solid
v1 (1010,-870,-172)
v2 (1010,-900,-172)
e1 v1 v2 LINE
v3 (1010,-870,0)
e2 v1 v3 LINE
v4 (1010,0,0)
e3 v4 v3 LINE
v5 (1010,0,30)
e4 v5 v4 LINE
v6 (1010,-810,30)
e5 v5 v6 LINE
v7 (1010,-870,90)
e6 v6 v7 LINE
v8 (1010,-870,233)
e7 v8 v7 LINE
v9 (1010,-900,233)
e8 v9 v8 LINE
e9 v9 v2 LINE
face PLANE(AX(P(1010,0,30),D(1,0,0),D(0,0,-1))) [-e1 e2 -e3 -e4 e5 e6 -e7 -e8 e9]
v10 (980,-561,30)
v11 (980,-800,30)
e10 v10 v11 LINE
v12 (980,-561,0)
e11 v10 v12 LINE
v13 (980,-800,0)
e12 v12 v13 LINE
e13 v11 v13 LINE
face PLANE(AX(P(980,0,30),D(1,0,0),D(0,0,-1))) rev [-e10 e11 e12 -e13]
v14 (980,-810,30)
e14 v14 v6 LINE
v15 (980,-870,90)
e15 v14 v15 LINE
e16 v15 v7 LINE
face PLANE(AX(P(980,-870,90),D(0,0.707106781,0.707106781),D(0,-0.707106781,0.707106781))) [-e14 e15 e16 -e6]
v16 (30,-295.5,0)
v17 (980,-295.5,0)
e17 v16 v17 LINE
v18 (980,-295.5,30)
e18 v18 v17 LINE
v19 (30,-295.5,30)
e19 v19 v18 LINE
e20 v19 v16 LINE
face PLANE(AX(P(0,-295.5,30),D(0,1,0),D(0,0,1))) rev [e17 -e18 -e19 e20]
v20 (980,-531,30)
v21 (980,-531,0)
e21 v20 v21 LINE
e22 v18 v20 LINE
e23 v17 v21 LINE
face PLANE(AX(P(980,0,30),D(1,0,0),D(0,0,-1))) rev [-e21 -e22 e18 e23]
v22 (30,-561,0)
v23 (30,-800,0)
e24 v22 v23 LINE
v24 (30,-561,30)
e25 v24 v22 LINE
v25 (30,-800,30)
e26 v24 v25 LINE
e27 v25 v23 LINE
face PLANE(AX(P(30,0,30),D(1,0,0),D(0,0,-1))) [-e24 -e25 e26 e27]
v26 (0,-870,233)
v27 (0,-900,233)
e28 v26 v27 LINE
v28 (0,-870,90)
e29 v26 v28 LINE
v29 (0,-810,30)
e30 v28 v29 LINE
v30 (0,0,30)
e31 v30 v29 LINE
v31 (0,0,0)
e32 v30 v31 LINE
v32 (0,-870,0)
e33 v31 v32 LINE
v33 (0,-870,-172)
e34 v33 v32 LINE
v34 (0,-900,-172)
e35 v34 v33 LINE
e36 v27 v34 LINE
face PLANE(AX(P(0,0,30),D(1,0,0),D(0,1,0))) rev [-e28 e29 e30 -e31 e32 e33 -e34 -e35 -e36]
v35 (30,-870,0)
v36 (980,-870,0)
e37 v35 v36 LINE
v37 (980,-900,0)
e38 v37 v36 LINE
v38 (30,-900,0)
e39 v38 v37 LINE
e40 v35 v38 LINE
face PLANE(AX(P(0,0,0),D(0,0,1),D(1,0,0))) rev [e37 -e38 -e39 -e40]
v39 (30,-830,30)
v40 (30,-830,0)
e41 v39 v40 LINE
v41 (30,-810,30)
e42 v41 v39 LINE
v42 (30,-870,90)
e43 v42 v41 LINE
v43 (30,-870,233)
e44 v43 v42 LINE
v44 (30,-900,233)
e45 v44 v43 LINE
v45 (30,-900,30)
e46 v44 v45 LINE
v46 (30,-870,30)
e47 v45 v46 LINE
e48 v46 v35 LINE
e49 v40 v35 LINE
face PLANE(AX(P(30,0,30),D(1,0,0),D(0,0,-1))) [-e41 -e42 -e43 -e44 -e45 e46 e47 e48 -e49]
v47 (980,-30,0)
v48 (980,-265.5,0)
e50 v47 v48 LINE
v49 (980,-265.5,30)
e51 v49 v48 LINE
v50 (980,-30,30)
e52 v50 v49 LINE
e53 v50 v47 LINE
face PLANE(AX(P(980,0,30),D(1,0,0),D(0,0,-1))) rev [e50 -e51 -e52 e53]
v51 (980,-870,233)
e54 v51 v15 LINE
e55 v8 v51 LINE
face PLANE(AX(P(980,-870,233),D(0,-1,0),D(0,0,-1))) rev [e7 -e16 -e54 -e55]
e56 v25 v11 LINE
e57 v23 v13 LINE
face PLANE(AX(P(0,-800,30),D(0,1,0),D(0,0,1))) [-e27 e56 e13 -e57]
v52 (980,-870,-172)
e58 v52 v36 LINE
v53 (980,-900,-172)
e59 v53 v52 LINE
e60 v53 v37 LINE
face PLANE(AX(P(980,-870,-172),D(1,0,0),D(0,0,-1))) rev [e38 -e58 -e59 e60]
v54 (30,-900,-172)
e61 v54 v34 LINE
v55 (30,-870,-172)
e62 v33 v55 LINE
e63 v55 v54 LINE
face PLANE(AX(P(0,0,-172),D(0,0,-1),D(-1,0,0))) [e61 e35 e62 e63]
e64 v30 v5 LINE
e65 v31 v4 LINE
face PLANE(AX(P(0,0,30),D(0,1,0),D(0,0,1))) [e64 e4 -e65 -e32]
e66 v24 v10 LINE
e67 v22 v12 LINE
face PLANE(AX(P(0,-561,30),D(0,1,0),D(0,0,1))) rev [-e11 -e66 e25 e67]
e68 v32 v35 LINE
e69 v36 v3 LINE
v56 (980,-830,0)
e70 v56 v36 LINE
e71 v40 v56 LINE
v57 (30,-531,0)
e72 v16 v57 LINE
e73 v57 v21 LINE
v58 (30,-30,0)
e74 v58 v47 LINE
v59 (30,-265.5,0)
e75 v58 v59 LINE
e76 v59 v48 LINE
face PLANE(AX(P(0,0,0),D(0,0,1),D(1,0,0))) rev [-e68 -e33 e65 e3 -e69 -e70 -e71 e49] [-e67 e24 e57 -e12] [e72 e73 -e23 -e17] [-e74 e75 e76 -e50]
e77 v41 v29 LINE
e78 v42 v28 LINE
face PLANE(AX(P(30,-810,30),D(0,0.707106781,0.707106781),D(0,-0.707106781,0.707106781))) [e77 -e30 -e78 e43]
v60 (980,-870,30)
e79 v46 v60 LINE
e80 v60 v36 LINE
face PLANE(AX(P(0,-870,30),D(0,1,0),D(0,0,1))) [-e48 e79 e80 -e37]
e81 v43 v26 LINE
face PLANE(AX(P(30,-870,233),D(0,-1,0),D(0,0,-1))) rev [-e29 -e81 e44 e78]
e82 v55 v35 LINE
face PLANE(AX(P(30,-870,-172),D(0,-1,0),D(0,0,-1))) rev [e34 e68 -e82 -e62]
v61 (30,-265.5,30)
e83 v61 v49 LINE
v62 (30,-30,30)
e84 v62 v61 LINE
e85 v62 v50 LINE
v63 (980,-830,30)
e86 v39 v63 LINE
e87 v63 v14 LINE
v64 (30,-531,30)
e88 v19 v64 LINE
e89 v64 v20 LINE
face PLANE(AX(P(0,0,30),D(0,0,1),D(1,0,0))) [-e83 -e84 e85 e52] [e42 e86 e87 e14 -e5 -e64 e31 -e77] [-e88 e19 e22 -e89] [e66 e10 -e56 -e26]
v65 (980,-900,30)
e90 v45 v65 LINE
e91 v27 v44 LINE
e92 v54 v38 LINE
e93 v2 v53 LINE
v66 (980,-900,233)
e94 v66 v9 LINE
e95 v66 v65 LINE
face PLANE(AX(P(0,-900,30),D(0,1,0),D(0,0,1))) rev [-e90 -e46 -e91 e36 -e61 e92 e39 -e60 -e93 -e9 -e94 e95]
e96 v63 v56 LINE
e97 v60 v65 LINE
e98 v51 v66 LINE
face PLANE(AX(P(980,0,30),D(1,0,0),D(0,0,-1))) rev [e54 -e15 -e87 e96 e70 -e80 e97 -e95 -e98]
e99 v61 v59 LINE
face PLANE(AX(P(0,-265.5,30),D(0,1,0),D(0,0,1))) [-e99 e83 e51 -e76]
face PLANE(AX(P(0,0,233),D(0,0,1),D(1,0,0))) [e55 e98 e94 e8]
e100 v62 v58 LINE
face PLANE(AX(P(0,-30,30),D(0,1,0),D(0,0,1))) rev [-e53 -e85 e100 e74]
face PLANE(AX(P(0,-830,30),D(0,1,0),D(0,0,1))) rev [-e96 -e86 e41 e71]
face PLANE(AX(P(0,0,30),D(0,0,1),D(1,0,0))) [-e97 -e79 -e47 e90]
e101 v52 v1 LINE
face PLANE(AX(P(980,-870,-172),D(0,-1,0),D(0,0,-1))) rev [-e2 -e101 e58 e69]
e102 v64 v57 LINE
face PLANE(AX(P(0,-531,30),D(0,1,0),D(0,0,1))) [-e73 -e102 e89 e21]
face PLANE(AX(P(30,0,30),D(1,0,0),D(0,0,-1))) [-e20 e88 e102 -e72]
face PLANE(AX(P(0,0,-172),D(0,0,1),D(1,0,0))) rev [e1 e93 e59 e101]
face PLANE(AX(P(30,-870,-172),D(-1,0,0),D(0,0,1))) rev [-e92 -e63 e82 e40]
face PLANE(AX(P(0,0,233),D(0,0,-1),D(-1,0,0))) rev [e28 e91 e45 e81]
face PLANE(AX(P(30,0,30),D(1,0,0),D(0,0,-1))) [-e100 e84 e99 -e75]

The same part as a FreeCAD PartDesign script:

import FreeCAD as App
import Part
import Sketcher

V = App.Vector
Q = App.Units.Quantity

doc = App.newDocument("Part")
body = doc.addObject("PartDesign::Body", "Body")

sketch1 = doc.addObject("Sketcher::SketchObject", "Sketch")
body.addObject(sketch1)
sketch1.AttachmentSupport = (doc.XY_Plane, [""])
sketch1.MapMode = "FlatFace"
sketch1.addGeometry(Part.LineSegment(V(0, 0, 0), V(0, -900, 0)), False)
sketch1.addGeometry(Part.LineSegment(V(0, -900, 0), V(1010, -900, 0)), False)
sketch1.addGeometry(Part.LineSegment(V(1010, -900, 0), V(1010, 0, 0)), False)
sketch1.addGeometry(Part.LineSegment(V(1010, 0, 0), V(0, 0, 0)), False)
sketch1.addGeometry(Part.LineSegment(V(980, -870, 0), V(30, -870, 0)), False)
sketch1.addGeometry(Part.LineSegment(V(30, -870, 0), V(30, -830, 0)), False)
sketch1.addGeometry(Part.LineSegment(V(30, -830, 0), V(980, -830, 0)), False)
sketch1.addGeometry(Part.LineSegment(V(980, -830, 0), V(980, -870, 0)), False)
sketch1.addGeometry(Part.LineSegment(V(980, -561, 0), V(980, -800, 0)), False)
sketch1.addGeometry(Part.LineSegment(V(980, -800, 0), V(30, -800, 0)), False)
sketch1.addGeometry(Part.LineSegment(V(30, -800, 0), V(30, -561, 0)), False)
sketch1.addGeometry(Part.LineSegment(V(30, -561, 0), V(980, -561, 0)), False)
sketch1.addGeometry(Part.LineSegment(V(980, -295.5, 0), V(980, -531, 0)), False)
sketch1.addGeometry(Part.LineSegment(V(980, -531, 0), V(30, -531, 0)), False)
sketch1.addGeometry(Part.LineSegment(V(30, -531, 0), V(30, -295.5, 0)), False)
sketch1.addGeometry(Part.LineSegment(V(30, -295.5, 0), V(980, -295.5, 0)), False)
sketch1.addGeometry(Part.LineSegment(V(980, -30, 0), V(980, -265.5, 0)), False)
sketch1.addGeometry(Part.LineSegment(V(980, -265.5, 0), V(30, -265.5, 0)), False)
sketch1.addGeometry(Part.LineSegment(V(30, -265.5, 0), V(30, -30, 0)), False)
sketch1.addGeometry(Part.LineSegment(V(30, -30, 0), V(980, -30, 0)), False)
sketch1.addConstraint(Sketcher.Constraint("Coincident", 0, 2, 1, 1))
sketch1.addConstraint(Sketcher.Constraint("Coincident", 1, 2, 2, 1))
sketch1.addConstraint(Sketcher.Constraint("Coincident", 2, 2, 3, 1))
sketch1.addConstraint(Sketcher.Constraint("Coincident", 3, 2, 0, 1))
sketch1.addConstraint(Sketcher.Constraint("Coincident", 4, 2, 5, 1))
sketch1.addConstraint(Sketcher.Constraint("Coincident", 5, 2, 6, 1))
sketch1.addConstraint(Sketcher.Constraint("Coincident", 6, 2, 7, 1))
sketch1.addConstraint(Sketcher.Constraint("Coincident", 7, 2, 4, 1))
sketch1.addConstraint(Sketcher.Constraint("Coincident", 8, 2, 9, 1))
sketch1.addConstraint(Sketcher.Constraint("Coincident", 9, 2, 10, 1))
sketch1.addConstraint(Sketcher.Constraint("Coincident", 10, 2, 11, 1))
sketch1.addConstraint(Sketcher.Constraint("Coincident", 11, 2, 8, 1))
sketch1.addConstraint(Sketcher.Constraint("Coincident", 12, 2, 13, 1))
sketch1.addConstraint(Sketcher.Constraint("Coincident", 13, 2, 14, 1))
sketch1.addConstraint(Sketcher.Constraint("Coincident", 14, 2, 15, 1))
sketch1.addConstraint(Sketcher.Constraint("Coincident", 15, 2, 12, 1))
sketch1.addConstraint(Sketcher.Constraint("Coincident", 16, 2, 17, 1))
sketch1.addConstraint(Sketcher.Constraint("Coincident", 17, 2, 18, 1))
sketch1.addConstraint(Sketcher.Constraint("Coincident", 18, 2, 19, 1))
sketch1.addConstraint(Sketcher.Constraint("Coincident", 19, 2, 16, 1))
sketch1.addConstraint(Sketcher.Constraint("Vertical", 0))
sketch1.addConstraint(Sketcher.Constraint("Horizontal", 1))
sketch1.addConstraint(Sketcher.Constraint("Vertical", 2))
sketch1.addConstraint(Sketcher.Constraint("Horizontal", 3))
sketch1.addConstraint(Sketcher.Constraint("Horizontal", 4))
sketch1.addConstraint(Sketcher.Constraint("Vertical", 5))
sketch1.addConstraint(Sketcher.Constraint("Horizontal", 6))
sketch1.addConstraint(Sketcher.Constraint("Vertical", 7))
sketch1.addConstraint(Sketcher.Constraint("Vertical", 8))
sketch1.addConstraint(Sketcher.Constraint("Horizontal", 9))
sketch1.addConstraint(Sketcher.Constraint("Vertical", 10))
sketch1.addConstraint(Sketcher.Constraint("Horizontal", 11))
sketch1.addConstraint(Sketcher.Constraint("Vertical", 12))
sketch1.addConstraint(Sketcher.Constraint("Horizontal", 13))
sketch1.addConstraint(Sketcher.Constraint("Vertical", 14))
sketch1.addConstraint(Sketcher.Constraint("Horizontal", 15))
sketch1.addConstraint(Sketcher.Constraint("Vertical", 16))
sketch1.addConstraint(Sketcher.Constraint("Horizontal", 17))
sketch1.addConstraint(Sketcher.Constraint("Vertical", 18))
sketch1.addConstraint(Sketcher.Constraint("Horizontal", 19))
sketch1.addConstraint(Sketcher.Constraint("Coincident", 3, 2, -1, 1))
sketch1.addConstraint(Sketcher.Constraint("Vertical", 7, 2, 8, 2))
sketch1.addConstraint(Sketcher.Constraint("Vertical", 5, 2, 9, 2))
sketch1.addConstraint(Sketcher.Constraint("Vertical", 11, 2, 12, 2))
sketch1.addConstraint(Sketcher.Constraint("Vertical", 10, 2, 13, 2))
sketch1.addConstraint(Sketcher.Constraint("Vertical", 15, 2, 16, 2))
sketch1.addConstraint(Sketcher.Constraint("Vertical", 14, 2, 17, 2))
sketch1.addConstraint(Sketcher.Constraint("Equal", 14, 16))
sketch1.addConstraint(Sketcher.Constraint("DistanceX", 1, 1, 1, 2, Q("1010 mm")))
sketch1.addConstraint(Sketcher.Constraint("DistanceX", 4, 2, 4, 1, Q("950 mm")))
sketch1.addConstraint(Sketcher.Constraint("DistanceY", 0, 2, 0, 1, Q("900 mm")))
sketch1.addConstraint(Sketcher.Constraint("DistanceY", 5, 1, 5, 2, Q("40 mm")))
sketch1.addConstraint(Sketcher.Constraint("DistanceY", 8, 2, 8, 1, Q("239 mm")))
sketch1.addConstraint(Sketcher.Constraint("DistanceY", 12, 2, 12, 1, Q("235.5 mm")))
sketch1.addConstraint(Sketcher.Constraint("DistanceX", -1, 1, 4, 2, Q("30 mm")))
sketch1.addConstraint(Sketcher.Constraint("DistanceY", 4, 2, -1, 1, Q("870 mm")))
sketch1.addConstraint(Sketcher.Constraint("DistanceY", 8, 2, -1, 1, Q("800 mm")))
sketch1.addConstraint(Sketcher.Constraint("DistanceY", 12, 2, -1, 1, Q("531 mm")))
sketch1.addConstraint(Sketcher.Constraint("DistanceY", 18, 2, -1, 1, Q("30 mm")))
pad1 = doc.addObject("PartDesign::Pad", "Pad")
body.addObject(pad1)
pad1.Profile = sketch1
pad1.Length = 30

sketch2 = doc.addObject("Sketcher::SketchObject", "Sketch001")
body.addObject(sketch2)
sketch2.AttachmentSupport = (doc.XY_Plane, [""])
sketch2.MapMode = "FlatFace"
sketch2.AttachmentOffset = App.Placement(V(0, 0, 30), App.Rotation())
sketch2.addGeometry(Part.LineSegment(V(0, -870, 0), V(0, -900, 0)), False)
sketch2.addGeometry(Part.LineSegment(V(0, -900, 0), V(30, -900, 0)), False)
sketch2.addGeometry(Part.LineSegment(V(30, -900, 0), V(30, -870, 0)), False)
sketch2.addGeometry(Part.LineSegment(V(30, -870, 0), V(0, -870, 0)), False)
sketch2.addGeometry(Part.LineSegment(V(980, -870, 0), V(980, -900, 0)), False)
sketch2.addGeometry(Part.LineSegment(V(980, -900, 0), V(1010, -900, 0)), False)
sketch2.addGeometry(Part.LineSegment(V(1010, -900, 0), V(1010, -870, 0)), False)
sketch2.addGeometry(Part.LineSegment(V(1010, -870, 0), V(980, -870, 0)), False)
sketch2.addConstraint(Sketcher.Constraint("Coincident", 0, 2, 1, 1))
sketch2.addConstraint(Sketcher.Constraint("Coincident", 1, 2, 2, 1))
sketch2.addConstraint(Sketcher.Constraint("Coincident", 2, 2, 3, 1))
sketch2.addConstraint(Sketcher.Constraint("Coincident", 3, 2, 0, 1))
sketch2.addConstraint(Sketcher.Constraint("Coincident", 4, 2, 5, 1))
sketch2.addConstraint(Sketcher.Constraint("Coincident", 5, 2, 6, 1))
sketch2.addConstraint(Sketcher.Constraint("Coincident", 6, 2, 7, 1))
sketch2.addConstraint(Sketcher.Constraint("Coincident", 7, 2, 4, 1))
sketch2.addConstraint(Sketcher.Constraint("Vertical", 0))
sketch2.addConstraint(Sketcher.Constraint("Horizontal", 1))
sketch2.addConstraint(Sketcher.Constraint("Vertical", 2))
sketch2.addConstraint(Sketcher.Constraint("Horizontal", 3))
sketch2.addConstraint(Sketcher.Constraint("Vertical", 4))
sketch2.addConstraint(Sketcher.Constraint("Horizontal", 5))
sketch2.addConstraint(Sketcher.Constraint("Vertical", 6))
sketch2.addConstraint(Sketcher.Constraint("Horizontal", 7))
sketch2.addConstraint(Sketcher.Constraint("PointOnObject", 0, 2, -2))
sketch2.addConstraint(Sketcher.Constraint("Horizontal", 1, 2, 4, 2))
sketch2.addConstraint(Sketcher.Constraint("Horizontal", 3, 2, 6, 2))
sketch2.addConstraint(Sketcher.Constraint("Equal", 3, 5))
sketch2.addConstraint(Sketcher.Constraint("Equal", 7, 0))
sketch2.addConstraint(Sketcher.Constraint("DistanceX", 1, 1, 1, 2, Q("30 mm")))
sketch2.addConstraint(Sketcher.Constraint("DistanceY", 0, 2, -1, 1, Q("900 mm")))
sketch2.addConstraint(Sketcher.Constraint("DistanceX", -1, 1, 4, 2, Q("980 mm")))
pad2 = doc.addObject("PartDesign::Pad", "Pad001")
body.addObject(pad2)
pad2.Profile = sketch2
pad2.Length = 203

sketch3 = doc.addObject("Sketcher::SketchObject", "Sketch002")
body.addObject(sketch3)
sketch3.AttachmentSupport = (doc.XY_Plane, [""])
sketch3.MapMode = "FlatFace"
sketch3.addGeometry(Part.LineSegment(V(30, -870, 0), V(30, -900, 0)), False)
sketch3.addGeometry(Part.LineSegment(V(30, -900, 0), V(0, -900, 0)), False)
sketch3.addGeometry(Part.LineSegment(V(0, -900, 0), V(0, -870, 0)), False)
sketch3.addGeometry(Part.LineSegment(V(0, -870, 0), V(30, -870, 0)), False)
sketch3.addGeometry(Part.LineSegment(V(1010, -870, 0), V(1010, -900, 0)), False)
sketch3.addGeometry(Part.LineSegment(V(1010, -900, 0), V(980, -900, 0)), False)
sketch3.addGeometry(Part.LineSegment(V(980, -900, 0), V(980, -870, 0)), False)
sketch3.addGeometry(Part.LineSegment(V(980, -870, 0), V(1010, -870, 0)), False)
sketch3.addConstraint(Sketcher.Constraint("Coincident", 0, 2, 1, 1))
sketch3.addConstraint(Sketcher.Constraint("Coincident", 1, 2, 2, 1))
sketch3.addConstraint(Sketcher.Constraint("Coincident", 2, 2, 3, 1))
sketch3.addConstraint(Sketcher.Constraint("Coincident", 3, 2, 0, 1))
sketch3.addConstraint(Sketcher.Constraint("Coincident", 4, 2, 5, 1))
sketch3.addConstraint(Sketcher.Constraint("Coincident", 5, 2, 6, 1))
sketch3.addConstraint(Sketcher.Constraint("Coincident", 6, 2, 7, 1))
sketch3.addConstraint(Sketcher.Constraint("Coincident", 7, 2, 4, 1))
sketch3.addConstraint(Sketcher.Constraint("Vertical", 0))
sketch3.addConstraint(Sketcher.Constraint("Horizontal", 1))
sketch3.addConstraint(Sketcher.Constraint("Vertical", 2))
sketch3.addConstraint(Sketcher.Constraint("Horizontal", 3))
sketch3.addConstraint(Sketcher.Constraint("Vertical", 4))
sketch3.addConstraint(Sketcher.Constraint("Horizontal", 5))
sketch3.addConstraint(Sketcher.Constraint("Vertical", 6))
sketch3.addConstraint(Sketcher.Constraint("Horizontal", 7))
sketch3.addConstraint(Sketcher.Constraint("PointOnObject", 1, 2, -2))
sketch3.addConstraint(Sketcher.Constraint("Horizontal", 1, 2, 4, 2))
sketch3.addConstraint(Sketcher.Constraint("Horizontal", 3, 2, 6, 2))
sketch3.addConstraint(Sketcher.Constraint("Equal", 3, 5))
sketch3.addConstraint(Sketcher.Constraint("Equal", 7, 0))
sketch3.addConstraint(Sketcher.Constraint("DistanceX", 1, 2, 1, 1, Q("30 mm")))
sketch3.addConstraint(Sketcher.Constraint("DistanceY", 0, 2, -1, 1, Q("900 mm")))
sketch3.addConstraint(Sketcher.Constraint("DistanceX", -1, 1, 4, 2, Q("1010 mm")))
pad3 = doc.addObject("PartDesign::Pad", "Pad002")
body.addObject(pad3)
pad3.Profile = sketch3
pad3.Length = 172
pad3.Reversed = True

sketch4 = doc.addObject("Sketcher::SketchObject", "Sketch003")
body.addObject(sketch4)
sketch4.AttachmentSupport = (doc.YZ_Plane, [""])
sketch4.MapMode = "FlatFace"
sketch4.addGeometry(Part.LineSegment(V(-870, 90, 0), V(-810, 30, 0)), False)
sketch4.addGeometry(Part.LineSegment(V(-810, 30, 0), V(-870, 30, 0)), False)
sketch4.addGeometry(Part.LineSegment(V(-870, 30, 0), V(-870, 90, 0)), False)
sketch4.addConstraint(Sketcher.Constraint("Coincident", 0, 2, 1, 1))
sketch4.addConstraint(Sketcher.Constraint("Coincident", 1, 2, 2, 1))
sketch4.addConstraint(Sketcher.Constraint("Coincident", 2, 2, 0, 1))
sketch4.addConstraint(Sketcher.Constraint("Horizontal", 1))
sketch4.addConstraint(Sketcher.Constraint("Vertical", 2))
sketch4.addConstraint(Sketcher.Constraint("Equal", 1, 2))
sketch4.addConstraint(Sketcher.Constraint("DistanceX", 1, 2, 1, 1, Q("60 mm")))
sketch4.addConstraint(Sketcher.Constraint("DistanceX", 0, 2, -1, 1, Q("810 mm")))
sketch4.addConstraint(Sketcher.Constraint("DistanceY", -1, 1, 0, 2, Q("30 mm")))
pad4 = doc.addObject("PartDesign::Pad", "Pad003")
body.addObject(pad4)
pad4.Profile = sketch4
pad4.Length = 30

sketch5 = doc.addObject("Sketcher::SketchObject", "Sketch004")
body.addObject(sketch5)
sketch5.AttachmentSupport = (doc.YZ_Plane, [""])
sketch5.MapMode = "FlatFace"
sketch5.AttachmentOffset = App.Placement(V(0, 0, 1010), App.Rotation())
sketch5.addGeometry(Part.LineSegment(V(-870, 30, 0), V(-810, 30, 0)), False)
sketch5.addGeometry(Part.LineSegment(V(-810, 30, 0), V(-870, 90, 0)), False)
sketch5.addGeometry(Part.LineSegment(V(-870, 90, 0), V(-870, 30, 0)), False)
sketch5.addConstraint(Sketcher.Constraint("Coincident", 0, 2, 1, 1))
sketch5.addConstraint(Sketcher.Constraint("Coincident", 1, 2, 2, 1))
sketch5.addConstraint(Sketcher.Constraint("Coincident", 2, 2, 0, 1))
sketch5.addConstraint(Sketcher.Constraint("Horizontal", 0))
sketch5.addConstraint(Sketcher.Constraint("Vertical", 2))
sketch5.addConstraint(Sketcher.Constraint("Equal", 0, 2))
sketch5.addConstraint(Sketcher.Constraint("DistanceX", 0, 1, 0, 2, Q("60 mm")))
sketch5.addConstraint(Sketcher.Constraint("DistanceX", 0, 2, -1, 1, Q("810 mm")))
sketch5.addConstraint(Sketcher.Constraint("DistanceY", -1, 1, 0, 2, Q("30 mm")))
pad5 = doc.addObject("PartDesign::Pad", "Pad004")
body.addObject(pad5)
pad5.Profile = sketch5
pad5.Length = 30
pad5.Reversed = True

doc.recompute()
